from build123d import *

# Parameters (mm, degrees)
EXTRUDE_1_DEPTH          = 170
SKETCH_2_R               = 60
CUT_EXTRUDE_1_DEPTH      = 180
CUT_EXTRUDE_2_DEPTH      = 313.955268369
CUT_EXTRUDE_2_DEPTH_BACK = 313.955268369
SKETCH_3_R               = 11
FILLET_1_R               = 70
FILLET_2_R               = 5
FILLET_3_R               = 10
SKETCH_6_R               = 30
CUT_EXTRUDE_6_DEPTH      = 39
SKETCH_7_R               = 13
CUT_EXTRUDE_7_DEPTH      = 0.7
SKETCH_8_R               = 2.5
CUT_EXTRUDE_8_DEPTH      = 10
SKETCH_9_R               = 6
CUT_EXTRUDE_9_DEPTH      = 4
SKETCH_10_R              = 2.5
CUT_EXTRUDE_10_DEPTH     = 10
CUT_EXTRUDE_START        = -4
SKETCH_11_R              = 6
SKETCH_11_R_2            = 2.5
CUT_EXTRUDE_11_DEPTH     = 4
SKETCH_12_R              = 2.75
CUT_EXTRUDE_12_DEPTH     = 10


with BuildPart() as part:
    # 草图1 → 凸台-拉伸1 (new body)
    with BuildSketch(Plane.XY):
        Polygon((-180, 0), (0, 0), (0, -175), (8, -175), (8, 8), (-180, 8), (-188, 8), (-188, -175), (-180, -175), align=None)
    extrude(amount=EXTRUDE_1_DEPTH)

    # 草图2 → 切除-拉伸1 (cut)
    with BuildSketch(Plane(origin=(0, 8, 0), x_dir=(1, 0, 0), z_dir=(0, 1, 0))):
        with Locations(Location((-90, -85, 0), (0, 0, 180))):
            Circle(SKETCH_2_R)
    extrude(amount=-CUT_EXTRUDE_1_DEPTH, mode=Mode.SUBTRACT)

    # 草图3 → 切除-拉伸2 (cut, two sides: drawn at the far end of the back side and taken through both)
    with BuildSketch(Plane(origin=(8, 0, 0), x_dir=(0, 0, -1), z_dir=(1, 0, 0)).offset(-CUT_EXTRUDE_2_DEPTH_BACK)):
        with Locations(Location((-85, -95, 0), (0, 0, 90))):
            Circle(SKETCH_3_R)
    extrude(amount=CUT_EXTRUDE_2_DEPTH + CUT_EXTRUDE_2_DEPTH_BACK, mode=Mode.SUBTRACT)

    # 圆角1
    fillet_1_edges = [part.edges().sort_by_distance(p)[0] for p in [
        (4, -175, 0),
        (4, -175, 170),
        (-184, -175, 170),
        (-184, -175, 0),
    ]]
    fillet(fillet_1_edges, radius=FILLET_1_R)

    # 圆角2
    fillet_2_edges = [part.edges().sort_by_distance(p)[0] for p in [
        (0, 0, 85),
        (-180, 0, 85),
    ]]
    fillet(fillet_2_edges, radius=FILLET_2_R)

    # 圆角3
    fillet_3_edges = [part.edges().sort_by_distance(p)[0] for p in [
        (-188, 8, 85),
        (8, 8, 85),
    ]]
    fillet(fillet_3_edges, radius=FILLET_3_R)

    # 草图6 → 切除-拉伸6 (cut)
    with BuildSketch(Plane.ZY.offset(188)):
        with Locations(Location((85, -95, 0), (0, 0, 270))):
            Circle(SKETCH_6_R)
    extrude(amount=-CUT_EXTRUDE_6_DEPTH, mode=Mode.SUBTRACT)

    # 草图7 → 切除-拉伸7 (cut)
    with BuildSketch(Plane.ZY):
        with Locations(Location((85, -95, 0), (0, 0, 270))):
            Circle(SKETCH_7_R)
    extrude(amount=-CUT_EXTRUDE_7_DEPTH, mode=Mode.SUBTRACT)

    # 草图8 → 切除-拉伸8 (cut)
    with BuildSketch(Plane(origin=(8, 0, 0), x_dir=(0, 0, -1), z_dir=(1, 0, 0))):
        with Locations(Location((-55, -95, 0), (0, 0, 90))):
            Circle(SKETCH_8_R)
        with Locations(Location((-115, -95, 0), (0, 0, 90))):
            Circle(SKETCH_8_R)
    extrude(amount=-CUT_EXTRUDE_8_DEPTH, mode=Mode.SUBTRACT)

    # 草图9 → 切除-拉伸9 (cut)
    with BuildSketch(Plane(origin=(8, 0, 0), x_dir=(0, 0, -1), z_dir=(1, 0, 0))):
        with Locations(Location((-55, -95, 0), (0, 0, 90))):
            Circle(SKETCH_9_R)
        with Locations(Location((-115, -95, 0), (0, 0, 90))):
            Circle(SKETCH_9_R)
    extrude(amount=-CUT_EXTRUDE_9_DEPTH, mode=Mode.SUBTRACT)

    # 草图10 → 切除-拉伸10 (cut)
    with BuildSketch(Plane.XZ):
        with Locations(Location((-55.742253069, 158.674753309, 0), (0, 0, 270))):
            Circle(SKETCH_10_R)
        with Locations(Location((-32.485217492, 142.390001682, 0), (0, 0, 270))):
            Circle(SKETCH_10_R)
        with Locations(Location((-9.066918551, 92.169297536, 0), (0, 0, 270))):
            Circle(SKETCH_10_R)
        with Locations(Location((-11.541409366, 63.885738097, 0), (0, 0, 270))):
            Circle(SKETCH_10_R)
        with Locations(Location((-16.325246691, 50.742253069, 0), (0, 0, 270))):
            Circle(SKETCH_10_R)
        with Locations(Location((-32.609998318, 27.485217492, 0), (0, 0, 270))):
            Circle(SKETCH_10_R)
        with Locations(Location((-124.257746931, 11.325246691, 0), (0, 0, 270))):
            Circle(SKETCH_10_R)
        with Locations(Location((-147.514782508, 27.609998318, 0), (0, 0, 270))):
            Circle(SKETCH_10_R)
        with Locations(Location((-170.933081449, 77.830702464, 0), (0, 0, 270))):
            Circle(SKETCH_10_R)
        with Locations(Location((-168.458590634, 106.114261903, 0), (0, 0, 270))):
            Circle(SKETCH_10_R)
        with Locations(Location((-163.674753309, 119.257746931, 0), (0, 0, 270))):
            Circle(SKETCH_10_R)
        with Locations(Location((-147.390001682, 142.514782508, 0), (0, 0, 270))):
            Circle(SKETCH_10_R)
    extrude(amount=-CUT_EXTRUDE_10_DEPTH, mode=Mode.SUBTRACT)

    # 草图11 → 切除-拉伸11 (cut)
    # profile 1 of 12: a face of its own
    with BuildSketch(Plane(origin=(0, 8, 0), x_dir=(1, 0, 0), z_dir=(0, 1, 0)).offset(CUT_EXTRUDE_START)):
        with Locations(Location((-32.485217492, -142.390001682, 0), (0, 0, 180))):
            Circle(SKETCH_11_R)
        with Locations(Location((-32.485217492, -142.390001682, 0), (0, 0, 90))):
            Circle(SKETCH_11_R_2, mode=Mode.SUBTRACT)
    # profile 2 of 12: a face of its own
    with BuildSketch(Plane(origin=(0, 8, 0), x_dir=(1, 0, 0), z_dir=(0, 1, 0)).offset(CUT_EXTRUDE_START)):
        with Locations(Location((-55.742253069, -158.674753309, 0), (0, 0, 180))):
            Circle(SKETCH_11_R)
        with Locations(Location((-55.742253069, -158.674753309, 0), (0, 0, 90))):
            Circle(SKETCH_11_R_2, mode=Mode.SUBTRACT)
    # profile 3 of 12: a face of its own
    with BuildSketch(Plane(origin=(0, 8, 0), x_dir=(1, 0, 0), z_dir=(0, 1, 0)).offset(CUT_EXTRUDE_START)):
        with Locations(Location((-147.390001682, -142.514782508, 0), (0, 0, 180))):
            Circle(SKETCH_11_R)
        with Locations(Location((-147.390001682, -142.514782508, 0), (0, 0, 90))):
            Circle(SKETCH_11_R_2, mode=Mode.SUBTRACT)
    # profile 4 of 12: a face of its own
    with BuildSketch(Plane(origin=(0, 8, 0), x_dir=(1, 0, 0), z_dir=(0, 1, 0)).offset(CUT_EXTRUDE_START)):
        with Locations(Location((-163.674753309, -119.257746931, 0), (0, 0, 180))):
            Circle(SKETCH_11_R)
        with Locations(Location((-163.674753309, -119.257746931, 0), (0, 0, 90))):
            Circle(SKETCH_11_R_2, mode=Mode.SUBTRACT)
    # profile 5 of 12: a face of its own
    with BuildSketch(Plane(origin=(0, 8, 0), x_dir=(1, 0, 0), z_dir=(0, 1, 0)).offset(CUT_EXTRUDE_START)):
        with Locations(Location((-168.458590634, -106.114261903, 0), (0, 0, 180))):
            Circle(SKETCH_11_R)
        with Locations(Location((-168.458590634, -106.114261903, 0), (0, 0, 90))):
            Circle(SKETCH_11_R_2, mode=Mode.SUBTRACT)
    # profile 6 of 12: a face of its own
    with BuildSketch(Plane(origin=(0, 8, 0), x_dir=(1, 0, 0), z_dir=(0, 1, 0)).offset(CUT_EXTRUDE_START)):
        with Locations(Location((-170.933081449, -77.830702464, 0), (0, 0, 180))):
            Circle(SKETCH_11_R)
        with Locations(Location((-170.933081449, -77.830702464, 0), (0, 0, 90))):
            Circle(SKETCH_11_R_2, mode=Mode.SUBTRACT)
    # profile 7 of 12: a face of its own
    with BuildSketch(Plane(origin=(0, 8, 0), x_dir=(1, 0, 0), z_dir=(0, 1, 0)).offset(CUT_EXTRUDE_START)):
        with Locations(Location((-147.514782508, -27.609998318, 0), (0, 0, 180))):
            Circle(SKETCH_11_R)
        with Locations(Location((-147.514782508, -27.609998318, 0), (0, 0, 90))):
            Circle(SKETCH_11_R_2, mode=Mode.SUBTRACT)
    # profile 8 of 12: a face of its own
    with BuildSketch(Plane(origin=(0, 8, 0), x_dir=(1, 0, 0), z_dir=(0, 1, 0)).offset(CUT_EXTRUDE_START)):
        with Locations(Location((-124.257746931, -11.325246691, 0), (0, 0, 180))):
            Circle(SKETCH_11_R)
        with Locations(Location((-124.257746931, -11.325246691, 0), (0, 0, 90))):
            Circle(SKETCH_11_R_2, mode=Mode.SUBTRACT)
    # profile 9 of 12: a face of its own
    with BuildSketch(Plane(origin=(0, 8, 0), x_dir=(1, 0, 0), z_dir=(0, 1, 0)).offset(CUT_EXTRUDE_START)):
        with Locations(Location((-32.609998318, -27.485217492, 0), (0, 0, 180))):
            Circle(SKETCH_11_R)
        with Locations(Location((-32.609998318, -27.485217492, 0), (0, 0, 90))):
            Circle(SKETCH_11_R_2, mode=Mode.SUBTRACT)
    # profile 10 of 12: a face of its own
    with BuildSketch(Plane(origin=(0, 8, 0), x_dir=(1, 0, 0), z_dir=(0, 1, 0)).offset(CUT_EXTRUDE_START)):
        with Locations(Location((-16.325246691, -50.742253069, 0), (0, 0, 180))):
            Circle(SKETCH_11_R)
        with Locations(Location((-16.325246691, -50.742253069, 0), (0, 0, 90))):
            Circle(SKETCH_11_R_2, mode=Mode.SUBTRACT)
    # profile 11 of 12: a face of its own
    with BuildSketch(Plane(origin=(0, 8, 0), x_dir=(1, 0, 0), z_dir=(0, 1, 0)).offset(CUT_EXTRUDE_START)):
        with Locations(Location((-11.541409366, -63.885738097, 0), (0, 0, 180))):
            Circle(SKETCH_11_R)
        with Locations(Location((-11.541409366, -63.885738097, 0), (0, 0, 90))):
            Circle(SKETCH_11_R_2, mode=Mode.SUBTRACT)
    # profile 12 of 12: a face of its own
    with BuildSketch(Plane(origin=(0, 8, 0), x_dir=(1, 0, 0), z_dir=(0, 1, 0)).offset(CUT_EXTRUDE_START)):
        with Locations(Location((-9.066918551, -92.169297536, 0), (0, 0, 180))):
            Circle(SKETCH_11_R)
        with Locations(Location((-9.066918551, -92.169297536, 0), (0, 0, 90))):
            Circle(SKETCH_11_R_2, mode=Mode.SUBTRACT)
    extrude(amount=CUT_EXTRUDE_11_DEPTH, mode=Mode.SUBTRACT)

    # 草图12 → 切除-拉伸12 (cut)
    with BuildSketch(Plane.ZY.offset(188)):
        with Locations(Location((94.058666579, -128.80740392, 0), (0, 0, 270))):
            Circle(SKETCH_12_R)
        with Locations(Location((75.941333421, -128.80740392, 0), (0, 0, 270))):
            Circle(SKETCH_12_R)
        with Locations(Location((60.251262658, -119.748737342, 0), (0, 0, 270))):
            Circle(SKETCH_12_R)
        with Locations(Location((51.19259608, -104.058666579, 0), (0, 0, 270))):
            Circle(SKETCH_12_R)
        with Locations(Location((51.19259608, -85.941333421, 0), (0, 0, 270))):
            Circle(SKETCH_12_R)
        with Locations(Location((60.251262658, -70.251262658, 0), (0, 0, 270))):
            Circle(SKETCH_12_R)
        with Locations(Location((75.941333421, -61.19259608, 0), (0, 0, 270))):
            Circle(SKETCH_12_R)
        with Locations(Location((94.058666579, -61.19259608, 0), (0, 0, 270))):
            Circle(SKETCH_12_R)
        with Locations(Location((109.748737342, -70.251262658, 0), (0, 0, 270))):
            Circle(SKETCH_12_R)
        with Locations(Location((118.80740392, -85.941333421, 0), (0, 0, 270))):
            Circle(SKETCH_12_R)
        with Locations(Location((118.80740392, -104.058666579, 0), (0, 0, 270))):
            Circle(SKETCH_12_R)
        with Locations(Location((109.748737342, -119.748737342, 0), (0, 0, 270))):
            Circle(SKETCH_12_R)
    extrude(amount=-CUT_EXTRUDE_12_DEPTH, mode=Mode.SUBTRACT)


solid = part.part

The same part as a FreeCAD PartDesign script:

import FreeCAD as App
import Part
import Sketcher
Q = App.Units.Quantity


def edges_at(feature, points):
    """Names of the edges that pass closest to the given points."""
    edges = feature.Shape.Edges
    near = lambda p: min(range(len(edges)), key=lambda i: edges[i].distToShape(Part.Vertex(*p))[0])
    return sorted({f"Edge{near(p) + 1}" for p in points})

doc = App.newDocument("Part")
body = doc.addObject("PartDesign::Body", "Body")

# Sketch on XY plane
sketch1 = body.newObject("Sketcher::SketchObject", "Sketch")
sketch1.AttachmentSupport = (doc.getObject("XY_Plane"), [""])
sketch1.MapMode = "FlatFace"
sketch1.addGeometry([
    Part.LineSegment(App.Vector(-180, 0, 0), App.Vector(0, 0, 0)),  # 0
    Part.LineSegment(App.Vector(0, 0, 0), App.Vector(0, -175, 0)),  # 1
    Part.LineSegment(App.Vector(0, -175, 0), App.Vector(8, -175, 0)),  # 2
    Part.LineSegment(App.Vector(8, -175, 0), App.Vector(8, 8, 0)),  # 3
    Part.LineSegment(App.Vector(8, 8, 0), App.Vector(-188, 8, 0)),  # 4
    Part.LineSegment(App.Vector(-188, 8, 0), App.Vector(-188, -175, 0)),  # 5
    Part.LineSegment(App.Vector(-188, -175, 0), App.Vector(-180, -175, 0)),  # 6
    Part.LineSegment(App.Vector(-180, -175, 0), App.Vector(-180, 0, 0)),  # 7
], False)
sketch1.addConstraint([
    Sketcher.Constraint("Coincident", 0, 2, 1, 1),
    Sketcher.Constraint("Coincident", 1, 2, 2, 1),
    Sketcher.Constraint("Coincident", 2, 2, 3, 1),
    Sketcher.Constraint("Coincident", 3, 2, 4, 1),
    Sketcher.Constraint("Coincident", 4, 2, 5, 1),
    Sketcher.Constraint("Coincident", 5, 2, 6, 1),
    Sketcher.Constraint("Coincident", 6, 2, 7, 1),
    Sketcher.Constraint("Coincident", 7, 2, 0, 1),
    Sketcher.Constraint("Horizontal", 0),
    Sketcher.Constraint("Vertical", 1),
    Sketcher.Constraint("Horizontal", 2),
    Sketcher.Constraint("Vertical", 3),
    Sketcher.Constraint("Horizontal", 4),
    Sketcher.Constraint("Vertical", 5),
    Sketcher.Constraint("Horizontal", 6),
    Sketcher.Constraint("Vertical", 7),
    Sketcher.Constraint("Coincident", 0, 2, -1, 1),
    Sketcher.Constraint("Horizontal", 2, 2, 5, 2),
    Sketcher.Constraint("Equal", 2, 6),
    Sketcher.Constraint("DistanceX", 0, 1, 0, 2, Q("180 mm")),
    Sketcher.Constraint("DistanceX", 2, 1, 2, 2, Q("8 mm")),
    Sketcher.Constraint("DistanceY", 1, 2, 1, 1, Q("175 mm")),
    Sketcher.Constraint("DistanceY", 3, 1, 3, 2, Q("183 mm")),
])
pad1 = body.newObject("PartDesign::Pad", "Pad")
pad1.Profile = sketch1
pad1.Length = 170

# Sketch on XZ plane
sketch2 = body.newObject("Sketcher::SketchObject", "Sketch001")
sketch2.AttachmentSupport = (doc.getObject("XZ_Plane"), [""])
sketch2.MapMode = "FlatFace"
sketch2.AttachmentOffset = App.Placement(App.Vector(0, 0, -8), App.Rotation())
sketch2.addGeometry(Part.Circle(App.Vector(-90, 85, 0), App.Vector(0, 0, 1), 60), False)
sketch2.addConstraint([
    Sketcher.Constraint("Diameter", 0, Q("120 mm")),
    Sketcher.Constraint("DistanceX", 0, 3, -1, 1, Q("90 mm")),
    Sketcher.Constraint("DistanceY", -1, 1, 0, 3, Q("85 mm")),
])
pocket1 = body.newObject("PartDesign::Pocket", "Pocket")
pocket1.Profile = sketch2
pocket1.Length = 180
pocket1.Reversed = True

# Sketch on YZ plane
sketch3 = body.newObject("Sketcher::SketchObject", "Sketch002")
sketch3.AttachmentSupport = (doc.getObject("YZ_Plane"), [""])
sketch3.MapMode = "FlatFace"
sketch3.AttachmentOffset = App.Placement(App.Vector(0, 0, 8), App.Rotation())
sketch3.addGeometry(Part.Circle(App.Vector(-95, 85, 0), App.Vector(0, 0, 1), 11), False)
sketch3.addConstraint([
    Sketcher.Constraint("Diameter", 0, Q("22 mm")),
    Sketcher.Constraint("DistanceX", 0, 3, -1, 1, Q("95 mm")),
    Sketcher.Constraint("DistanceY", -1, 1, 0, 3, Q("85 mm")),
])
pocket2 = body.newObject("PartDesign::Pocket", "Pocket001")
pocket2.Profile = sketch3
pocket2.Type = "ThroughAll"
pocket2.Midplane = True
doc.recompute()

fillet = body.newObject("PartDesign::Fillet", "Fillet")
fillet.Base = (pocket2, edges_at(pocket2, [
    (4, -175, 0),
    (4, -175, 170),
    (-184, -175, 170),
    (-184, -175, 0),
]))
fillet.Radius = 70
doc.recompute()

fillet2 = body.newObject("PartDesign::Fillet", "Fillet001")
fillet2.Base = (fillet, edges_at(fillet, [(0, 0, 85), (-180, 0, 85)]))
fillet2.Radius = 5
doc.recompute()

fillet3 = body.newObject("PartDesign::Fillet", "Fillet002")
fillet3.Base = (fillet2, edges_at(fillet2, [(-188, 8, 85), (8, 8, 85)]))
fillet3.Radius = 10

# Sketch on YZ plane
sketch4 = body.newObject("Sketcher::SketchObject", "Sketch003")
sketch4.AttachmentSupport = (doc.getObject("YZ_Plane"), [""])
sketch4.MapMode = "FlatFace"
sketch4.AttachmentOffset = App.Placement(App.Vector(0, 0, -188), App.Rotation())
sketch4.addGeometry(Part.Circle(App.Vector(-95, 85, 0), App.Vector(0, 0, 1), 30), False)
sketch4.addConstraint([
    Sketcher.Constraint("Diameter", 0, Q("60 mm")),
    Sketcher.Constraint("DistanceX", 0, 3, -1, 1, Q("95 mm")),
    Sketcher.Constraint("DistanceY", -1, 1, 0, 3, Q("85 mm")),
])
pocket3 = body.newObject("PartDesign::Pocket", "Pocket002")
pocket3.Profile = sketch4
pocket3.Length = 39
pocket3.Reversed = True

# Sketch on YZ plane
sketch5 = body.newObject("Sketcher::SketchObject", "Sketch004")
sketch5.AttachmentSupport = (doc.getObject("YZ_Plane"), [""])
sketch5.MapMode = "FlatFace"
sketch5.addGeometry(Part.Circle(App.Vector(-95, 85, 0), App.Vector(0, 0, 1), 13), False)
sketch5.addConstraint([
    Sketcher.Constraint("Diameter", 0, Q("26 mm")),
    Sketcher.Constraint("DistanceX", 0, 3, -1, 1, Q("95 mm")),
    Sketcher.Constraint("DistanceY", -1, 1, 0, 3, Q("85 mm")),
])
pocket4 = body.newObject("PartDesign::Pocket", "Pocket003")
pocket4.Profile = sketch5
pocket4.Length = 0.7
pocket4.Reversed = True

# Sketch on YZ plane
sketch6 = body.newObject("Sketcher::SketchObject", "Sketch005")
sketch6.AttachmentSupport = (doc.getObject("YZ_Plane"), [""])
sketch6.MapMode = "FlatFace"
sketch6.AttachmentOffset = App.Placement(App.Vector(0, 0, 8), App.Rotation())
sketch6.addGeometry([
    Part.Circle(App.Vector(-95, 55, 0), App.Vector(0, 0, 1), 2.5),
    Part.Circle(App.Vector(-95, 115, 0), App.Vector(0, 0, 1), 2.5),
], False)
sketch6.addConstraint([
    Sketcher.Constraint("Equal", 0, 1),
    Sketcher.Constraint("Vertical", 0, 3, 1, 3),
    Sketcher.Constraint("Diameter", 0, Q("5 mm")),
    Sketcher.Constraint("DistanceX", 0, 3, -1, 1, Q("95 mm")),
    Sketcher.Constraint("DistanceY", -1, 1, 0, 3, Q("55 mm")),
    Sketcher.Constraint("DistanceY", -1, 1, 1, 3, Q("115 mm")),
])
pocket5 = body.newObject("PartDesign::Pocket", "Pocket004")
pocket5.Profile = sketch6
pocket5.Length = 10

# Sketch on YZ plane
sketch7 = body.newObject("Sketcher::SketchObject", "Sketch006")
sketch7.AttachmentSupport = (doc.getObject("YZ_Plane"), [""])
sketch7.MapMode = "FlatFace"
sketch7.AttachmentOffset = App.Placement(App.Vector(0, 0, 8), App.Rotation())
sketch7.addGeometry([
    Part.Circle(App.Vector(-95, 55, 0), App.Vector(0, 0, 1), 6),
    Part.Circle(App.Vector(-95, 115, 0), App.Vector(0, 0, 1), 6),
], False)
sketch7.addConstraint([
    Sketcher.Constraint("Equal", 0, 1),
    Sketcher.Constraint("Vertical", 0, 3, 1, 3),
    Sketcher.Constraint("Diameter", 0, Q("12 mm")),
    Sketcher.Constraint("DistanceX", 0, 3, -1, 1, Q("95 mm")),
    Sketcher.Constraint("DistanceY", -1, 1, 0, 3, Q("55 mm")),
    Sketcher.Constraint("DistanceY", -1, 1, 1, 3, Q("115 mm")),
])
pocket6 = body.newObject("PartDesign::Pocket", "Pocket005")
pocket6.Profile = sketch7
pocket6.Length = 4

# Sketch on XZ plane
sketch8 = body.newObject("Sketcher::SketchObject", "Sketch007")
sketch8.AttachmentSupport = (doc.getObject("XZ_Plane"), [""])
sketch8.MapMode = "FlatFace"
sketch8.addGeometry([
    Part.Circle(App.Vector(-55.7, 158.7, 0), App.Vector(0, 0, 1), 2.5),  # 0
    Part.Circle(App.Vector(-32.5, 142.4, 0), App.Vector(0, 0, 1), 2.5),  # 1
    Part.Circle(App.Vector(-9.1, 92.2, 0), App.Vector(0, 0, 1), 2.5),  # 2
    Part.Circle(App.Vector(-11.5, 63.9, 0), App.Vector(0, 0, 1), 2.5),  # 3
    Part.Circle(App.Vector(-16.3, 50.7, 0), App.Vector(0, 0, 1), 2.5),  # 4
    Part.Circle(App.Vector(-32.6, 27.5, 0), App.Vector(0, 0, 1), 2.5),  # 5
    Part.Circle(App.Vector(-124.3, 11.3, 0), App.Vector(0, 0, 1), 2.5),  # 6
    Part.Circle(App.Vector(-147.5, 27.6, 0), App.Vector(0, 0, 1), 2.5),  # 7
    Part.Circle(App.Vector(-170.9, 77.8, 0), App.Vector(0, 0, 1), 2.5),  # 8
    Part.Circle(App.Vector(-168.5, 106.1, 0), App.Vector(0, 0, 1), 2.5),  # 9
    Part.Circle(App.Vector(-163.7, 119.3, 0), App.Vector(0, 0, 1), 2.5),  # 10
    Part.Circle(App.Vector(-147.4, 142.5, 0), App.Vector(0, 0, 1), 2.5),  # 11
], False)
sketch8.addConstraint([
    Sketcher.Constraint("Equal", 0, 1),
    Sketcher.Constraint("Equal", 1, 2),
    Sketcher.Constraint("Equal", 2, 3),
    Sketcher.Constraint("Equal", 3, 4),
    Sketcher.Constraint("Equal", 4, 5),
    Sketcher.Constraint("Equal", 5, 6),
    Sketcher.Constraint("Equal", 6, 7),
    Sketcher.Constraint("Equal", 7, 8),
    Sketcher.Constraint("Equal", 8, 9),
    Sketcher.Constraint("Equal", 9, 10),
    Sketcher.Constraint("Equal", 10, 11),
    Sketcher.Constraint("Diameter", 0, Q("5 mm")),
    Sketcher.Constraint("DistanceY", -1, 1, 1, 3, Q("142.390002 mm")),
    Sketcher.Constraint("DistanceX", 5, 3, -1, 1, Q("32.609998 mm")),
    Sketcher.Constraint("DistanceY", -1, 1, 7, 3, Q("27.609998 mm")),
    Sketcher.Constraint("DistanceX", 11, 3, -1, 1, Q("147.390002 mm")),
    Sketcher.Constraint("DistanceX", 1, 3, 2, 3, Q("23.418299 mm")),
    Sketcher.Constraint("DistanceY", 4, 3, 0, 3, Q("107.9325 mm")),
    Sketcher.Constraint("DistanceX", 6, 3, 4, 3, Q("107.9325 mm")),
    Sketcher.Constraint("DistanceY", 7, 3, 2, 3, Q("64.559299 mm")),
    Sketcher.Constraint("DistanceX", 8, 3, 7, 3, Q("23.418299 mm")),
    Sketcher.Constraint("DistanceY", 8, 3, 1, 3, Q("64.559299 mm")),
    Sketcher.Constraint("DistanceY", 6, 3, 10, 3, Q("107.9325 mm")),
    Sketcher.Constraint("DistanceX", 10, 3, 0, 3, Q("107.9325 mm")),
    Sketcher.Constraint("DistanceX", 2, 3, -1, 1, Q("9.066919 mm")),
    Sketcher.Constraint("DistanceX", 3, 3, -1, 1, Q("11.541409 mm")),
    Sketcher.Constraint("DistanceY", -1, 1, 3, 3, Q("63.885738 mm")),
    Sketcher.Constraint("DistanceX", 8, 3, -1, 1, Q("170.933081 mm")),
    Sketcher.Constraint("DistanceX", 9, 3, -1, 1, Q("168.458591 mm")),
    Sketcher.Constraint("DistanceY", -1, 1, 9, 3, Q("106.114262 mm")),
    Sketcher.Constraint("DistanceY", 1, 3, 0, 3, Q("16.284752 mm")),
    Sketcher.Constraint("DistanceX", 4, 3, 2, 3, Q("7.258328 mm")),
    Sketcher.Constraint("DistanceY", 5, 3, 3, 3, Q("36.400521 mm")),
    Sketcher.Constraint("DistanceY", 6, 3, 5, 3, Q("16.159971 mm")),
    Sketcher.Constraint("DistanceX", 8, 3, 0, 3, Q("115.190828 mm")),
    Sketcher.Constraint("DistanceY", 9, 3, 11, 3, Q("36.400521 mm")),
])
pocket7 = body.newObject("PartDesign::Pocket", "Pocket006")
pocket7.Profile = sketch8
pocket7.Length = 10

# Sketch on XZ plane
sketch9 = body.newObject("Sketcher::SketchObject", "Sketch008")
sketch9.AttachmentSupport = (doc.getObject("XZ_Plane"), [""])
sketch9.MapMode = "FlatFace"
sketch9.AttachmentOffset = App.Placement(App.Vector(0, 0, -4), App.Rotation())
sketch9.addGeometry([
    Part.Circle(App.Vector(-32.5, 142.4, 0), App.Vector(0, 0, 1), 6),  # 0
    Part.Circle(App.Vector(-32.5, 142.4, 0), App.Vector(0, 0, 1), 2.5),  # 1
    Part.Circle(App.Vector(-55.7, 158.7, 0), App.Vector(0, 0, 1), 6),  # 2
    Part.Circle(App.Vector(-55.7, 158.7, 0), App.Vector(0, 0, 1), 2.5),  # 3
    Part.Circle(App.Vector(-147.4, 142.5, 0), App.Vector(0, 0, 1), 6),  # 4
    Part.Circle(App.Vector(-147.4, 142.5, 0), App.Vector(0, 0, 1), 2.5),  # 5
    Part.Circle(App.Vector(-163.7, 119.3, 0), App.Vector(0, 0, 1), 6),  # 6
    Part.Circle(App.Vector(-163.7, 119.3, 0), App.Vector(0, 0, 1), 2.5),  # 7
    Part.Circle(App.Vector(-168.5, 106.1, 0), App.Vector(0, 0, 1), 6),  # 8
    Part.Circle(App.Vector(-168.5, 106.1, 0), App.Vector(0, 0, 1), 2.5),  # 9
    Part.Circle(App.Vector(-170.9, 77.8, 0), App.Vector(0, 0, 1), 6),  # 10
    Part.Circle(App.Vector(-170.9, 77.8, 0), App.Vector(0, 0, 1), 2.5),  # 11
    Part.Circle(App.Vector(-147.5, 27.6, 0), App.Vector(0, 0, 1), 6),  # 12
    Part.Circle(App.Vector(-147.5, 27.6, 0), App.Vector(0, 0, 1), 2.5),  # 13
    Part.Circle(App.Vector(-124.3, 11.3, 0), App.Vector(0, 0, 1), 6),  # 14
    Part.Circle(App.Vector(-124.3, 11.3, 0), App.Vector(0, 0, 1), 2.5),  # 15
    Part.Circle(App.Vector(-32.6, 27.5, 0), App.Vector(0, 0, 1), 6),  # 16
    Part.Circle(App.Vector(-32.6, 27.5, 0), App.Vector(0, 0, 1), 2.5),  # 17
    Part.Circle(App.Vector(-16.3, 50.7, 0), App.Vector(0, 0, 1), 6),  # 18
    Part.Circle(App.Vector(-16.3, 50.7, 0), App.Vector(0, 0, 1), 2.5),  # 19
    Part.Circle(App.Vector(-11.5, 63.9, 0), App.Vector(0, 0, 1), 6),  # 20
    Part.Circle(App.Vector(-11.5, 63.9, 0), App.Vector(0, 0, 1), 2.5),  # 21
    Part.Circle(App.Vector(-9.1, 92.2, 0), App.Vector(0, 0, 1), 6),  # 22
    Part.Circle(App.Vector(-9.1, 92.2, 0), App.Vector(0, 0, 1), 2.5),  # 23
], False)
sketch9.addConstraint([
    Sketcher.Constraint("Coincident", 1, 3, 0, 3),
    Sketcher.Constraint("Coincident", 3, 3, 2, 3),
    Sketcher.Constraint("Coincident", 5, 3, 4, 3),
    Sketcher.Constraint("Coincident", 7, 3, 6, 3),
    Sketcher.Constraint("Coincident", 9, 3, 8, 3),
    Sketcher.Constraint("Coincident", 11, 3, 10, 3),
    Sketcher.Constraint("Coincident", 13, 3, 12, 3),
    Sketcher.Constraint("Coincident", 15, 3, 14, 3),
    Sketcher.Constraint("Coincident", 17, 3, 16, 3),
    Sketcher.Constraint("Coincident", 19, 3, 18, 3),
    Sketcher.Constraint("Coincident", 21, 3, 20, 3),
    Sketcher.Constraint("Coincident", 23, 3, 22, 3),
    Sketcher.Constraint("Equal", 0, 2),
    Sketcher.Constraint("Equal", 1, 3),
    Sketcher.Constraint("Equal", 2, 4),
    Sketcher.Constraint("Equal", 3, 5),
    Sketcher.Constraint("Equal", 4, 6),
    Sketcher.Constraint("Equal", 5, 7),
    Sketcher.Constraint("Equal", 6, 8),
    Sketcher.Constraint("Equal", 7, 9),
    Sketcher.Constraint("Equal", 8, 10),
    Sketcher.Constraint("Equal", 9, 11),
    Sketcher.Constraint("Equal", 10, 12),
    Sketcher.Constraint("Equal", 11, 13),
    Sketcher.Constraint("Equal", 12, 14),
    Sketcher.Constraint("Equal", 13, 15),
    Sketcher.Constraint("Equal", 14, 16),
    Sketcher.Constraint("Equal", 15, 17),
    Sketcher.Constraint("Equal", 16, 18),
    Sketcher.Constraint("Equal", 17, 19),
    Sketcher.Constraint("Equal", 18, 20),
    Sketcher.Constraint("Equal", 19, 21),
    Sketcher.Constraint("Equal", 20, 22),
    Sketcher.Constraint("Equal", 21, 23),
    Sketcher.Constraint("Diameter", 0, Q("12 mm")),
    Sketcher.Constraint("Diameter", 1, Q("5 mm")),
    Sketcher.Constraint("DistanceY", -1, 1, 0, 3, Q("142.390002 mm")),
    Sketcher.Constraint("DistanceX", 4, 3, -1, 1, Q("147.390002 mm")),
    Sketcher.Constraint("DistanceY", -1, 1, 12, 3, Q("27.609998 mm")),
    Sketcher.Constraint("DistanceX", 16, 3, -1, 1, Q("32.609998 mm")),
    Sketcher.Constraint("DistanceX", 6, 3, 2, 3, Q("107.9325 mm")),
    Sketcher.Constraint("DistanceX", 10, 3, 12, 3, Q("23.418299 mm")),
    Sketcher.Constraint("DistanceX", 14, 3, 18, 3, Q("107.9325 mm")),
    Sketcher.Constraint("DistanceX", 0, 3, 22, 3, Q("23.418299 mm")),
    Sketcher.Constraint("DistanceX", 8, 3, -1, 1, Q("168.458591 mm")),
    Sketcher.Constraint("DistanceY", -1, 1, 8, 3, Q("106.114262 mm")),
    Sketcher.Constraint("DistanceX", 10, 3, -1, 1, Q("170.933081 mm")),
    Sketcher.Constraint("DistanceX", 20, 3, -1, 1, Q("11.541409 mm")),
    Sketcher.Constraint("DistanceY", -1, 1, 20, 3, Q("63.885738 mm")),
    Sketcher.Constraint("DistanceX", 22, 3, -1, 1, Q("9.066919 mm")),
    Sketcher.Constraint("DistanceY", 0, 3, 2, 3, Q("16.284752 mm")),
    Sketcher.Constraint("DistanceX", 4, 3, 2, 3, Q("91.647749 mm")),
    Sketcher.Constraint("DistanceY", 4, 3, 2, 3, Q("16.159971 mm")),
    Sketcher.Constraint("DistanceY", 10, 3, 8, 3, Q("28.283559 mm")),
    Sketcher.Constraint("DistanceY", 12, 3, 6, 3, Q("91.647749 mm")),
    Sketcher.Constraint("DistanceY", 14, 3, 12, 3, Q("16.284752 mm")),
    Sketcher.Constraint("DistanceX", 14, 3, 16, 3, Q("91.647749 mm")),
    Sketcher.Constraint("DistanceY", 14, 3, 16, 3, Q("16.159971 mm")),
    Sketcher.Constraint("DistanceY", 18, 3, 0, 3, Q("91.647749 mm")),
    Sketcher.Constraint("DistanceY", 20, 3, 22, 3, Q("28.283559 mm")),
])
pocket8 = body.newObject("PartDesign::Pocket", "Pocket007")
pocket8.Profile = sketch9
pocket8.Length = 4

# Sketch on YZ plane
sketch10 = body.newObject("Sketcher::SketchObject", "Sketch009")
sketch10.AttachmentSupport = (doc.getObject("YZ_Plane"), [""])
sketch10.MapMode = "FlatFace"
sketch10.AttachmentOffset = App.Placement(App.Vector(0, 0, -188), App.Rotation())
sketch10.addGeometry([
    Part.Circle(App.Vector(-128.8, 94.1, 0), App.Vector(0, 0, 1), 2.8),  # 0
    Part.Circle(App.Vector(-128.8, 75.9, 0), App.Vector(0, 0, 1), 2.8),  # 1
    Part.Circle(App.Vector(-119.7, 60.3, 0), App.Vector(0, 0, 1), 2.8),  # 2
    Part.Circle(App.Vector(-104.1, 51.2, 0), App.Vector(0, 0, 1), 2.8),  # 3
    Part.Circle(App.Vector(-85.9, 51.2, 0), App.Vector(0, 0, 1), 2.8),  # 4
    Part.Circle(App.Vector(-70.3, 60.3, 0), App.Vector(0, 0, 1), 2.8),  # 5
    Part.Circle(App.Vector(-61.2, 75.9, 0), App.Vector(0, 0, 1), 2.8),  # 6
    Part.Circle(App.Vector(-61.2, 94.1, 0), App.Vector(0, 0, 1), 2.8),  # 7
    Part.Circle(App.Vector(-70.3, 109.7, 0), App.Vector(0, 0, 1), 2.8),  # 8
    Part.Circle(App.Vector(-85.9, 118.8, 0), App.Vector(0, 0, 1), 2.8),  # 9
    Part.Circle(App.Vector(-104.1, 118.8, 0), App.Vector(0, 0, 1), 2.8),  # 10
    Part.Circle(App.Vector(-119.7, 109.7, 0), App.Vector(0, 0, 1), 2.8),  # 11
], False)
sketch10.addConstraint([
    Sketcher.Constraint("Equal", 0, 1),
    Sketcher.Constraint("Equal", 1, 2),
    Sketcher.Constraint("Equal", 2, 3),
    Sketcher.Constraint("Equal", 3, 4),
    Sketcher.Constraint("Equal", 4, 5),
    Sketcher.Constraint("Equal", 5, 6),
    Sketcher.Constraint("Equal", 6, 7),
    Sketcher.Constraint("Equal", 7, 8),
    Sketcher.Constraint("Equal", 8, 9),
    Sketcher.Constraint("Equal", 9, 10),
    Sketcher.Constraint("Equal", 10, 11),
    Sketcher.Constraint("Horizontal", 3, 3, 4, 3),
    Sketcher.Constraint("Horizontal", 2, 3, 5, 3),
    Sketcher.Constraint("Horizontal", 1, 3, 6, 3),
    Sketcher.Constraint("Horizontal", 0, 3, 7, 3),
    Sketcher.Constraint("Horizontal", 9, 3, 10, 3),
    Sketcher.Constraint("Horizontal", 8, 3, 11, 3),
    Sketcher.Constraint("Vertical", 0, 3, 1, 3),
    Sketcher.Constraint("Vertical", 6, 3, 7, 3),
    Sketcher.Constraint("Vertical", 5, 3, 8, 3),
    Sketcher.Constraint("Vertical", 4, 3, 9, 3),
    Sketcher.Constraint("Vertical", 3, 3, 10, 3),
    Sketcher.Constraint("Vertical", 2, 3, 11, 3),
    Sketcher.Constraint("Diameter", 0, Q("5.5 mm")),
    Sketcher.Constraint("DistanceY", 2, 3, 1, 3, Q("15.690071 mm")),
    Sketcher.Constraint("DistanceX", 2, 3, 3, 3, Q("15.690071 mm")),
    Sketcher.Constraint("DistanceY", 3, 3, 0, 3, Q("42.86607 mm")),
    Sketcher.Constraint("DistanceX", 1, 3, 4, 3, Q("42.86607 mm")),
    Sketcher.Constraint("DistanceX", 4, 3, 5, 3, Q("15.690071 mm")),
    Sketcher.Constraint("DistanceX", 3, 3, 6, 3, Q("42.86607 mm")),
    Sketcher.Constraint("DistanceY", 7, 3, 8, 3, Q("15.690071 mm")),
    Sketcher.Constraint("DistanceY", 6, 3, 9, 3, Q("42.86607 mm")),
    Sketcher.Constraint("DistanceX", 0, 3, -1, 1, Q("128.807404 mm")),
    Sketcher.Constraint("DistanceY", -1, 1, 0, 3, Q("94.058667 mm")),
    Sketcher.Constraint("DistanceY", -1, 1, 1, 3, Q("75.941333 mm")),
    Sketcher.Constraint("DistanceX", 2, 3, -1, 1, Q("119.748737 mm")),
])
pocket9 = body.newObject("PartDesign::Pocket", "Pocket008")
pocket9.Profile = sketch10
pocket9.Length = 10
pocket9.Reversed = True

doc.recompute()
